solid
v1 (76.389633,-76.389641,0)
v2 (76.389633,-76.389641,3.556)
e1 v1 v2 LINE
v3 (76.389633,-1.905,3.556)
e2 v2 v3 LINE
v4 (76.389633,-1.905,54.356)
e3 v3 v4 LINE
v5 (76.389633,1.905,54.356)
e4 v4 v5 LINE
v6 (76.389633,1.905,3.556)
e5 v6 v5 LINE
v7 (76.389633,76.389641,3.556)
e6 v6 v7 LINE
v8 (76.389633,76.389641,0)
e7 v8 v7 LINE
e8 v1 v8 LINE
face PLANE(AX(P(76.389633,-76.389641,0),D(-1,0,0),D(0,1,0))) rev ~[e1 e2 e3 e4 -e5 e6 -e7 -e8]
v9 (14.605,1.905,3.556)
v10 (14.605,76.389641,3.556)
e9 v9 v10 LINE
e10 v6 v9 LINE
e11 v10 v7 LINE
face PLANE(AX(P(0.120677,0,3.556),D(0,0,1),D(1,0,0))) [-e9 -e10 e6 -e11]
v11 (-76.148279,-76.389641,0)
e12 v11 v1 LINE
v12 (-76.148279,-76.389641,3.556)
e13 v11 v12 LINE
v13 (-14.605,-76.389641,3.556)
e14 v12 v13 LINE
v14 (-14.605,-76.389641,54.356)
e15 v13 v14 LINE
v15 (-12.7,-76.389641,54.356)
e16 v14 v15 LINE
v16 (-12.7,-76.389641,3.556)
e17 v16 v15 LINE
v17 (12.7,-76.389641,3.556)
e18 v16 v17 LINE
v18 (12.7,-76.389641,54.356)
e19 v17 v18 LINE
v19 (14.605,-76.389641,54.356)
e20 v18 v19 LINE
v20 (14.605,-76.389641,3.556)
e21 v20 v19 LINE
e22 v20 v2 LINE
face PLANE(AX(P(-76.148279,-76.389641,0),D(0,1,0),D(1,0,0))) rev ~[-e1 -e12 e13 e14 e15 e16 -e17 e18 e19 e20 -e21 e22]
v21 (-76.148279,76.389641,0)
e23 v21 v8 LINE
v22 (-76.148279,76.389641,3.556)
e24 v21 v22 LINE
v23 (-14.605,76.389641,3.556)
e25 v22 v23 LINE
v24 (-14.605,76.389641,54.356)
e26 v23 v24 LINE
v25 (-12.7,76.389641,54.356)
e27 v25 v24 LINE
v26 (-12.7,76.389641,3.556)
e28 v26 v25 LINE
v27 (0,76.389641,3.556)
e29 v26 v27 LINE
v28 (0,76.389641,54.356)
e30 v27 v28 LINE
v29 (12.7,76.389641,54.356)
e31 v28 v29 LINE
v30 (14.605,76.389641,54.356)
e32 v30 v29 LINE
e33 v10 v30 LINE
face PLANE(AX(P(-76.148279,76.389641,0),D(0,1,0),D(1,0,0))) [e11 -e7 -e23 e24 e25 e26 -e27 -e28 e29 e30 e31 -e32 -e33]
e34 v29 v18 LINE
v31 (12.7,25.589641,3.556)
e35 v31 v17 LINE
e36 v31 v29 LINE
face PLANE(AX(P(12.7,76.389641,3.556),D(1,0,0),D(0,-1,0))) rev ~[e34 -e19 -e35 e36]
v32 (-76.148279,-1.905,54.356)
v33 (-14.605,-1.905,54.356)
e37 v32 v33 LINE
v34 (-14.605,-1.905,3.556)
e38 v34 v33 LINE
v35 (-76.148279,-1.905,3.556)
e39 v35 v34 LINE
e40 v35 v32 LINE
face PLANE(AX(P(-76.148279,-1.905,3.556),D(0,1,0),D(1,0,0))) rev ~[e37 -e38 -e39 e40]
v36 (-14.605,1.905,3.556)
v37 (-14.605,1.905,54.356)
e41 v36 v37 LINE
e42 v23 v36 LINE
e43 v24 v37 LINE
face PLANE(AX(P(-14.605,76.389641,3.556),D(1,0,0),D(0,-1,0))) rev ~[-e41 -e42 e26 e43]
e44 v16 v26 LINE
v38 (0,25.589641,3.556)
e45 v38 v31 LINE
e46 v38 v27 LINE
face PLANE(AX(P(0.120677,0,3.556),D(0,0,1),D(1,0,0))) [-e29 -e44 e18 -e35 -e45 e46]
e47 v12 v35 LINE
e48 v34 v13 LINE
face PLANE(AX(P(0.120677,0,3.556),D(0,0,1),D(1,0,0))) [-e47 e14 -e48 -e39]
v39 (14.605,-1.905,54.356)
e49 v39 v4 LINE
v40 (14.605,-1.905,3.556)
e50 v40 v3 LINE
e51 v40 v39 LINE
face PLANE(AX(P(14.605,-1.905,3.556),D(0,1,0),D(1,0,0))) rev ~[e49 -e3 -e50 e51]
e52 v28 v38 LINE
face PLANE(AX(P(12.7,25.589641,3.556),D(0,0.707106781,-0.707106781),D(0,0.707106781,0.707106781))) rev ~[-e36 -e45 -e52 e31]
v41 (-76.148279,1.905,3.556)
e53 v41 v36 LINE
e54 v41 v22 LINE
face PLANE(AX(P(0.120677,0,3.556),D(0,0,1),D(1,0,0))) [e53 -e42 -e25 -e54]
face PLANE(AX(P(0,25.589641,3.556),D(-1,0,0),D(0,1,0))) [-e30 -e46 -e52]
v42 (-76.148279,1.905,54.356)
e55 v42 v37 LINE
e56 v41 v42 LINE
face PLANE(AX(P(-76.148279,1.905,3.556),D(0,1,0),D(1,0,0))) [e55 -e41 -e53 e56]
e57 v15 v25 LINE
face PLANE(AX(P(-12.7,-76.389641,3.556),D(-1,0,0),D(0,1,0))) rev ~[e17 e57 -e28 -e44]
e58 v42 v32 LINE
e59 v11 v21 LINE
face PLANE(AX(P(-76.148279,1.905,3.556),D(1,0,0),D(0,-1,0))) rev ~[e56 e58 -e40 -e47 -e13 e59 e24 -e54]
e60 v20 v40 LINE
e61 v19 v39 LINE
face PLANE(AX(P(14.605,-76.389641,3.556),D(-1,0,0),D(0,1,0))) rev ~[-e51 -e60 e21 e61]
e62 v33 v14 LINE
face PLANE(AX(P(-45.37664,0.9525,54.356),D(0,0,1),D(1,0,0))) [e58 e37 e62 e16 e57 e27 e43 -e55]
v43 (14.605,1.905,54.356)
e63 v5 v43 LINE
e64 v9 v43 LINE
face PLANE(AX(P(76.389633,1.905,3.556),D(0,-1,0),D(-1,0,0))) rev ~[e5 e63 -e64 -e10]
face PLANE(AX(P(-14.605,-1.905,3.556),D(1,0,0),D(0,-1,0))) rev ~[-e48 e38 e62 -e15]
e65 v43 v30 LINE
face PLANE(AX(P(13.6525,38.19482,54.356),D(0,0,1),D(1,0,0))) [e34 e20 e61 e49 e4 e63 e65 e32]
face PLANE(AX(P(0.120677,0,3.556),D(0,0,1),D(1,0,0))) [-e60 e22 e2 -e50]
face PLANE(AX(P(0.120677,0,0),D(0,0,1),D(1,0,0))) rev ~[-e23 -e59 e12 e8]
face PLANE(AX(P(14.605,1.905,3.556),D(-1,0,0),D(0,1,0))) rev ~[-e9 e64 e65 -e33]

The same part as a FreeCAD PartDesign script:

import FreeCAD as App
import Part
import Sketcher
Q = App.Units.Quantity


def add_polygon(sketch, points):
    """Adds a closed chain of lines whose ends are joined by coincident constraints."""
    first, n = sketch.GeometryCount, len(points)
    for a, b in zip(points, points[1:] + points[:1]):
        sketch.addGeometry(Part.LineSegment(App.Vector(*a, 0), App.Vector(*b, 0)), False)
    for i in range(n):
        sketch.addConstraint(Sketcher.Constraint("Coincident", first + i, 2, first + (i + 1) % n, 1))

doc = App.newDocument("Part")
body = doc.addObject("PartDesign::Body", "Body")

sketch1 = body.newObject("Sketcher::SketchObject", "Sketch")
sketch1.AttachmentSupport = (doc.getObject("XY_Plane"), [""])
sketch1.MapMode = "FlatFace"
add_polygon(sketch1, [(-76, 76), (-76, -76), (76, -76), (76, 76)])
sketch1.addConstraint([
    Sketcher.Constraint("Vertical", 0),
    Sketcher.Constraint("Horizontal", 1),
    Sketcher.Constraint("Vertical", 2),
    Sketcher.Constraint("Horizontal", 3),
    Sketcher.Constraint("DistanceY", 0, 2, 0, 1, 152.779281),
    Sketcher.Constraint("DistanceX", 1, 1, 1, 2, 152.537912),
    Sketcher.Constraint("DistanceX", 0, 2, -1, 1, 76.148279),
    Sketcher.Constraint("DistanceY", 0, 2, -1, 1, 76.389641),
])
pad1 = body.newObject("PartDesign::Pad", "Pad")
pad1.Profile = sketch1
pad1.Length = Q("0.14 in")

sketch2 = body.newObject("Sketcher::SketchObject", "Sketch001")
sketch2.AttachmentSupport = (doc.getObject("XY_Plane"), [""])
sketch2.MapMode = "FlatFace"
sketch2.AttachmentOffset = App.Placement(App.Vector(0, 0, 0.14 * 25.4), App.Rotation())
add_polygon(sketch2, [(0, 76), (0, 26), (13, 26), (13, 76)])
sketch2.addConstraint([
    Sketcher.Constraint("Vertical", 0),
    Sketcher.Constraint("Horizontal", 1),
    Sketcher.Constraint("Vertical", 2),
    Sketcher.Constraint("Horizontal", 3),
    Sketcher.Constraint("PointOnObject", 0, 2, -2),
    Sketcher.Constraint("DistanceY", 0, 2, 0, 1, Q("2 in")),
    Sketcher.Constraint("DistanceX", 1, 1, 1, 2, Q("0.5 in")),
    Sketcher.Constraint("DistanceY", -1, 1, 0, 2, 25.589641),
])
pad2 = body.newObject("PartDesign::Pad", "Pad001")
pad2.Profile = sketch2
pad2.Length = Q("2 in")

sketch3 = body.newObject("Sketcher::SketchObject", "Sketch002")
sketch3.AttachmentSupport = (doc.getObject("YZ_Plane"), [""])
sketch3.MapMode = "FlatFace"
sketch3.AttachmentOffset = App.Placement(App.Vector(0, 0, 0.5 * 25.4), App.Rotation())
add_polygon(sketch3, [(26, 4), (76, 54), (26, 54)])
sketch3.addConstraint([
    Sketcher.Constraint("Horizontal", 1),
    Sketcher.Constraint("Vertical", 2),
    Sketcher.Constraint("Equal", 1, 2),
    Sketcher.Constraint("DistanceX", 1, 2, 1, 1, Q("2 in")),
    Sketcher.Constraint("DistanceY", -1, 1, 0, 2, Q("2.14 in")),
    Sketcher.Constraint("DistanceX", -1, 1, 0, 2, 76.389641),
])
pocket1 = body.newObject("PartDesign::Pocket", "Pocket")
pocket1.Profile = sketch3
pocket1.Length = Q("1 in")

sketch4 = body.newObject("Sketcher::SketchObject", "Sketch003")
sketch4.AttachmentSupport = (doc.getObject("XY_Plane"), [""])
sketch4.MapMode = "FlatFace"
sketch4.AttachmentOffset = App.Placement(App.Vector(0, 0, 0.14 * 25.4), App.Rotation())
add_polygon(sketch4, [(-76.1, 1.9), (-76.1, -1.9), (-14.6, -1.9), (-14.6, -76.4), (-12.7, -76.4), (-12.7, 76.4), (-14.6, 76.4), (-14.6, 1.9)])
add_polygon(sketch4, [(14.6, 76.4), (12.7, 76.4), (12.7, -76.4), (14.6, -76.4), (14.6, -1.9), (76.4, -1.9), (76.4, 1.9), (14.6, 1.9)])
sketch4.addConstraint([
    Sketcher.Constraint("Vertical", 0),
    Sketcher.Constraint("Horizontal", 1),
    Sketcher.Constraint("Vertical", 2),
    Sketcher.Constraint("Horizontal", 3),
    Sketcher.Constraint("Vertical", 4),
    Sketcher.Constraint("Horizontal", 5),
    Sketcher.Constraint("Vertical", 6),
    Sketcher.Constraint("Horizontal", 7),
    Sketcher.Constraint("Horizontal", 8),
    Sketcher.Constraint("Vertical", 9),
    Sketcher.Constraint("Horizontal", 10),
    Sketcher.Constraint("Vertical", 11),
    Sketcher.Constraint("Horizontal", 12),
    Sketcher.Constraint("Vertical", 13),
    Sketcher.Constraint("Horizontal", 14),
    Sketcher.Constraint("Vertical", 15),
    Sketcher.Constraint("Symmetric", 3, 2, 8, 2, -1, 1),
    Sketcher.Constraint("Symmetric", 5, 2, 10, 2, -1, 1),
    Sketcher.Constraint("Symmetric", 1, 2, 14, 2, -1, 1),
    Sketcher.Constraint("Symmetric", 2, 2, 10, 2, -2),
    Sketcher.Constraint("Horizontal", 1, 2, 11, 2),
    Sketcher.Constraint("Horizontal", 7, 2, 13, 2),
    Sketcher.Constraint("DistanceX", 4, 2, 8, 2, Q("1 in")),
    Sketcher.Constraint("DistanceY", 0, 2, 0, 1, Q("0.15 in")),
    Sketcher.Constraint("DistanceX", 3, 1, 3, 2, Q("0.075 in")),
    Sketcher.Constraint("DistanceX", 1, 1, 1, 2, 61.543279),
    Sketcher.Constraint("DistanceY", 2, 2, 2, 1, 74.484641),
    Sketcher.Constraint("DistanceX", 12, 1, 12, 2, 61.784633),
])
pad3 = body.newObject("PartDesign::Pad", "Pad002")
pad3.Profile = sketch4
pad3.Length = Q("2 in")

doc.recompute()
